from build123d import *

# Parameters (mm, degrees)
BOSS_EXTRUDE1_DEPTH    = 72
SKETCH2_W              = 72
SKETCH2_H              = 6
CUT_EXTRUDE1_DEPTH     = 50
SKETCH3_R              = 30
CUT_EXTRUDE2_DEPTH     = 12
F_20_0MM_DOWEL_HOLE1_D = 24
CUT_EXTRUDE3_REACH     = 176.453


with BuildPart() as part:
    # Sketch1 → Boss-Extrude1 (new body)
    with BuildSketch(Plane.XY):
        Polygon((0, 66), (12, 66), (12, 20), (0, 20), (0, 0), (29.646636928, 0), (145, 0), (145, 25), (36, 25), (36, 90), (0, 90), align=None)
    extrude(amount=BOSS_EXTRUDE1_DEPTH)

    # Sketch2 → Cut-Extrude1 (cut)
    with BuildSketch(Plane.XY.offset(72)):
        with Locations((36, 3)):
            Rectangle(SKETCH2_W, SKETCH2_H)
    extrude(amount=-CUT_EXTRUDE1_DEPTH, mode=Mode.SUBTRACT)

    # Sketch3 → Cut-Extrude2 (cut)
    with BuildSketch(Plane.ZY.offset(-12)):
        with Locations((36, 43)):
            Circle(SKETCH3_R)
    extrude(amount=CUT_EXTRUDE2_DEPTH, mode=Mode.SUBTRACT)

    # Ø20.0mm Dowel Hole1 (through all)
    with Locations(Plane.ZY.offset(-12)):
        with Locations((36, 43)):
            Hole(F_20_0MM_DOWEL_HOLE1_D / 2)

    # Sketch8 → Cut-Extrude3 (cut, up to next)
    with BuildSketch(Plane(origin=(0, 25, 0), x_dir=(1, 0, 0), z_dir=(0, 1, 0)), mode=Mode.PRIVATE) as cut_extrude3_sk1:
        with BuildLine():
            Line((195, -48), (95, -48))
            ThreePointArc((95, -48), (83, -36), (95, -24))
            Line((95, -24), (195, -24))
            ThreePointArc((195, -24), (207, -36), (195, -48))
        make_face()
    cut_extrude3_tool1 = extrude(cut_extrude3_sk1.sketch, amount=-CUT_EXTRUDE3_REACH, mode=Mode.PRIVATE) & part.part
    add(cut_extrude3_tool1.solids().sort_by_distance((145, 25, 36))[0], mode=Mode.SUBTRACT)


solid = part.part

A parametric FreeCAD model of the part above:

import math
import FreeCAD as App
import Part
import Sketcher

doc = App.newDocument("Part")
body = doc.addObject("PartDesign::Body", "Body")

# Sketch on XY plane
sketch1 = body.newObject("Sketcher::SketchObject", "Sketch")
sketch1.AttachmentSupport = (doc.getObject("XY_Plane"), [""])
sketch1.MapMode = "FlatFace"
sketch1.addGeometry([
    Part.LineSegment(App.Vector(0, 66, 0), App.Vector(12, 66, 0)),  # 0
    Part.LineSegment(App.Vector(12, 66, 0), App.Vector(12, 20, 0)),  # 1
    Part.LineSegment(App.Vector(12, 20, 0), App.Vector(0, 20, 0)),  # 2
    Part.LineSegment(App.Vector(0, 20, 0), App.Vector(0, 0, 0)),  # 3
    Part.LineSegment(App.Vector(0, 0, 0), App.Vector(145, 0, 0)),  # 4
    Part.LineSegment(App.Vector(145, 0, 0), App.Vector(145, 25, 0)),  # 5
    Part.LineSegment(App.Vector(145, 25, 0), App.Vector(36, 25, 0)),  # 6
    Part.LineSegment(App.Vector(36, 25, 0), App.Vector(36, 90, 0)),  # 7
    Part.LineSegment(App.Vector(36, 90, 0), App.Vector(0, 90, 0)),  # 8
    Part.LineSegment(App.Vector(0, 90, 0), App.Vector(0, 66, 0)),  # 9
], False)
sketch1.addConstraint([
    Sketcher.Constraint("Coincident", 0, 2, 1, 1),
    Sketcher.Constraint("Coincident", 1, 2, 2, 1),
    Sketcher.Constraint("Coincident", 2, 2, 3, 1),
    Sketcher.Constraint("Coincident", 3, 2, 4, 1),
    Sketcher.Constraint("Coincident", 4, 2, 5, 1),
    Sketcher.Constraint("Coincident", 5, 2, 6, 1),
    Sketcher.Constraint("Coincident", 6, 2, 7, 1),
    Sketcher.Constraint("Coincident", 7, 2, 8, 1),
    Sketcher.Constraint("Coincident", 8, 2, 9, 1),
    Sketcher.Constraint("Coincident", 9, 2, 0, 1),
    Sketcher.Constraint("Horizontal", 0),
    Sketcher.Constraint("Vertical", 1),
    Sketcher.Constraint("Horizontal", 2),
    Sketcher.Constraint("Vertical", 3),
    Sketcher.Constraint("Horizontal", 4),
    Sketcher.Constraint("Vertical", 5),
    Sketcher.Constraint("Horizontal", 6),
    Sketcher.Constraint("Vertical", 7),
    Sketcher.Constraint("Horizontal", 8),
    Sketcher.Constraint("Vertical", 9),
    Sketcher.Constraint("Coincident", 3, 2, -1, 1),
    Sketcher.Constraint("PointOnObject", 8, 2, -2),
    Sketcher.Constraint("DistanceX", 0, 1, 0, 2, 12.0),
    Sketcher.Constraint("DistanceX", 4, 1, 4, 2, 145.0),
    Sketcher.Constraint("DistanceX", 6, 2, 6, 1, 109.0),
    Sketcher.Constraint("DistanceY", 1, 2, 1, 1, 46.0),
    Sketcher.Constraint("DistanceY", 3, 2, 3, 1, 20.0),
    Sketcher.Constraint("DistanceY", 5, 1, 5, 2, 25.0),
    Sketcher.Constraint("DistanceY", 7, 1, 7, 2, 65.0),
])
pad1 = body.newObject("PartDesign::Pad", "Pad")
pad1.Profile = sketch1
pad1.Length = 72

# Sketch on XY plane
sketch2 = body.newObject("Sketcher::SketchObject", "Sketch001")
sketch2.AttachmentSupport = (doc.getObject("XY_Plane"), [""])
sketch2.MapMode = "FlatFace"
sketch2.AttachmentOffset = App.Placement(App.Vector(0, 0, 72), App.Rotation())
sketch2.addGeometry([
    Part.LineSegment(App.Vector(0, 6, 0), App.Vector(0, 0, 0)),
    Part.LineSegment(App.Vector(0, 0, 0), App.Vector(72, 0, 0)),
    Part.LineSegment(App.Vector(72, 0, 0), App.Vector(72, 6, 0)),
    Part.LineSegment(App.Vector(72, 6, 0), App.Vector(0, 6, 0)),
], False)
sketch2.addConstraint([
    Sketcher.Constraint("Coincident", 0, 2, 1, 1),
    Sketcher.Constraint("Coincident", 1, 2, 2, 1),
    Sketcher.Constraint("Coincident", 2, 2, 3, 1),
    Sketcher.Constraint("Coincident", 3, 2, 0, 1),
    Sketcher.Constraint("Vertical", 0),
    Sketcher.Constraint("Horizontal", 1),
    Sketcher.Constraint("Vertical", 2),
    Sketcher.Constraint("Horizontal", 3),
    Sketcher.Constraint("Coincident", 0, 2, -1, 1),
    Sketcher.Constraint("DistanceX", 1, 1, 1, 2, 72.0),
    Sketcher.Constraint("DistanceY", 0, 2, 0, 1, 6.0),
])
pocket1 = body.newObject("PartDesign::Pocket", "Pocket")
pocket1.Profile = sketch2
pocket1.Length = 50

# Sketch on YZ plane
sketch3 = body.newObject("Sketcher::SketchObject", "Sketch002")
sketch3.AttachmentSupport = (doc.getObject("YZ_Plane"), [""])
sketch3.MapMode = "FlatFace"
sketch3.AttachmentOffset = App.Placement(App.Vector(0, 0, 12), App.Rotation())
sketch3.addGeometry(Part.Circle(App.Vector(43, 36, 0), App.Vector(0, 0, 1), 30), False)
sketch3.addConstraint([
    Sketcher.Constraint("Diameter", 0, 60.0),
    Sketcher.Constraint("DistanceX", -1, 1, 0, 3, 43.0),
    Sketcher.Constraint("DistanceY", -1, 1, 0, 3, 36.0),
])
pocket2 = body.newObject("PartDesign::Pocket", "Pocket001")
pocket2.Profile = sketch3
pocket2.Length = 12

# Sketch on YZ plane
sketch4 = body.newObject("Sketcher::SketchObject", "Sketch003")
sketch4.AttachmentSupport = (doc.getObject("YZ_Plane"), [""])
sketch4.MapMode = "FlatFace"
sketch4.AttachmentOffset = App.Placement(App.Vector(0, 0, 12), App.Rotation())
sketch4.addGeometry(Part.Circle(App.Vector(43, 36, 0), App.Vector(0, 0, 1), 12), False)
sketch4.addConstraint([
    Sketcher.Constraint("Diameter", 0, 24.0),
    Sketcher.Constraint("DistanceX", -1, 1, 0, 3, 43.0),
    Sketcher.Constraint("DistanceY", -1, 1, 0, 3, 36.0),
])
doc.recompute()
hole = body.newObject("PartDesign::Hole", "Hole")
hole.Profile = sketch4
hole.ThreadType = "None"
hole.Diameter = 24
hole.DepthType = "ThroughAll"
hole.Reversed = True

# Sketch on XZ plane
sketch5 = body.newObject("Sketcher::SketchObject", "Sketch004")
sketch5.AttachmentSupport = (doc.getObject("XZ_Plane"), [""])
sketch5.MapMode = "FlatFace"
sketch5.AttachmentOffset = App.Placement(App.Vector(0, 0, -25), App.Rotation())
sketch5.addGeometry([
    Part.LineSegment(App.Vector(95, 48, 0), App.Vector(195, 48, 0)),
    Part.ArcOfCircle(Part.Circle(App.Vector(195, 36, 0), App.Vector(0, 0, 1), 12), math.radians(-90), math.radians(90)),
    Part.LineSegment(App.Vector(195, 24, 0), App.Vector(95, 24, 0)),
    Part.ArcOfCircle(Part.Circle(App.Vector(95, 36, 0), App.Vector(0, 0, 1), 12), math.radians(90), math.radians(270)),
], False)
sketch5.addConstraint([
    Sketcher.Constraint("Tangent", 0, 2, 1, 2),
    Sketcher.Constraint("Tangent", 1, 1, 2, 1),
    Sketcher.Constraint("Tangent", 2, 2, 3, 2),
    Sketcher.Constraint("Tangent", 3, 1, 0, 1),
    Sketcher.Constraint("Horizontal", 0),
    Sketcher.Constraint("Horizontal", 2),
    Sketcher.Constraint("Radius", 1, 12.0),
    Sketcher.Constraint("DistanceX", 0, 1, 0, 2, 100.0),
    Sketcher.Constraint("DistanceX", -1, 1, 1, 3, 195.0),
    Sketcher.Constraint("DistanceY", -1, 1, 1, 3, 36.0),
])
pocket3 = body.newObject("PartDesign::Pocket", "Pocket002")
pocket3.Profile = sketch5
pocket3.Type = "UpToFirst"
pocket3.Reversed = True

doc.recompute()
